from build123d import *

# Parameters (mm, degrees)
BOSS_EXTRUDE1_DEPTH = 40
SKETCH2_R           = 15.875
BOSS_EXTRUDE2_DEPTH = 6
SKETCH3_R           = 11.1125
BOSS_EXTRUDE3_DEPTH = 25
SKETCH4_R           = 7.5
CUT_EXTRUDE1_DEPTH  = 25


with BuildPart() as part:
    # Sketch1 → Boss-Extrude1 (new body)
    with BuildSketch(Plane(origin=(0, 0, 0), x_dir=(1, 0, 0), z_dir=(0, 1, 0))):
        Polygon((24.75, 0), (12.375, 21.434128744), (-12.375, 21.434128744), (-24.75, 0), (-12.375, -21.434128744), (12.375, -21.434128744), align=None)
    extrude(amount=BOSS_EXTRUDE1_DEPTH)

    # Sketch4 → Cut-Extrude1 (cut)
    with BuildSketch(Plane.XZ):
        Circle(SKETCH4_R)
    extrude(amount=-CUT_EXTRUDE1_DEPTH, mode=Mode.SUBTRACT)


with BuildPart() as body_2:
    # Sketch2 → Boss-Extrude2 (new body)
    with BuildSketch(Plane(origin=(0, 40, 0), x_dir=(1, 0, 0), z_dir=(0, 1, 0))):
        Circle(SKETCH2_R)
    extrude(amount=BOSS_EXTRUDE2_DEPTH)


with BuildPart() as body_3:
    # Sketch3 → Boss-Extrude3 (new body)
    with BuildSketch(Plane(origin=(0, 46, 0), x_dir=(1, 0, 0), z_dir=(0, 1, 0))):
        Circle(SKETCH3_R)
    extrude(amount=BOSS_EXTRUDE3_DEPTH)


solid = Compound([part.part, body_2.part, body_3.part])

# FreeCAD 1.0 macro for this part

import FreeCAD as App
import Part
import Sketcher

V = App.Vector
Q = App.Units.Quantity

doc = App.newDocument("Part")
body = doc.addObject("PartDesign::Body", "Body")

sketch1 = body.newObject("Sketcher::SketchObject", "Sketch")
sketch1.AttachmentSupport = (doc.getObject("XZ_Plane"), [""])
sketch1.MapMode = "FlatFace"
sketch1.addGeometry([
    Part.LineSegment(V(25, 0, 0), V(12, -21, 0)),
    Part.LineSegment(V(12, -21, 0), V(-12, -21, 0)),
    Part.LineSegment(V(-12, -21, 0), V(-25, 0, 0)),
    Part.LineSegment(V(-25, 0, 0), V(-12, 21, 0)),
    Part.LineSegment(V(-12, 21, 0), V(12, 21, 0)),
    Part.LineSegment(V(12, 21, 0), V(25, 0, 0)),
], False)
sketch1.addConstraint([
    Sketcher.Constraint("Coincident", 0, 2, 1, 1),
    Sketcher.Constraint("Coincident", 1, 2, 2, 1),
    Sketcher.Constraint("Coincident", 2, 2, 3, 1),
    Sketcher.Constraint("Coincident", 3, 2, 4, 1),
    Sketcher.Constraint("Coincident", 4, 2, 5, 1),
    Sketcher.Constraint("Coincident", 5, 2, 0, 1),
    Sketcher.Constraint("Horizontal", 1),
    Sketcher.Constraint("Horizontal", 4),
    Sketcher.Constraint("Symmetric", 0, 2, 3, 2, -1, 1),
    Sketcher.Constraint("Symmetric", 2, 2, 5, 2, -1, 1),
    Sketcher.Constraint("PointOnObject", 2, 2, -1),
    Sketcher.Constraint("Parallel", 2, 5),
    Sketcher.Constraint("Vertical", 1, 2, 3, 2),
    Sketcher.Constraint("Angle", 0, Q("-120 deg")),
    Sketcher.Constraint("DistanceX", 1, 2, 1, 1, 24.75),
    Sketcher.Constraint("DistanceX", 2, 2, 5, 2, 49.5),
])
pad1 = body.newObject("PartDesign::Pad", "Pad")
pad1.Profile = sketch1
pad1.Length = 40
pad1.Reversed = True

sketch2 = body.newObject("Sketcher::SketchObject", "Sketch001")
sketch2.AttachmentSupport = (doc.getObject("XZ_Plane"), [""])
sketch2.MapMode = "FlatFace"
sketch2.addGeometry(Part.Circle(V(0, 0, 0), V(0, 0, 1), 8), False)
sketch2.addConstraint([
    Sketcher.Constraint("Coincident", 0, 3, -1, 1),
    Sketcher.Constraint("Diameter", 0, 15.0),
])
pocket1 = body.newObject("PartDesign::Pocket", "Pocket")
pocket1.Profile = sketch2
pocket1.Length = 25
body2 = doc.addObject("PartDesign::Body", "Body001")

sketch3 = body2.newObject("Sketcher::SketchObject", "Sketch002")
sketch3.AttachmentSupport = (doc.getObject("XZ_Plane001"), [""])
sketch3.MapMode = "FlatFace"
sketch3.AttachmentOffset = App.Placement(V(0, 0, -40), App.Rotation())
sketch3.addGeometry(Part.Circle(V(0, 0, 0), V(0, 0, 1), 16), False)
sketch3.addConstraint([
    Sketcher.Constraint("Coincident", 0, 3, -1, 1),
    Sketcher.Constraint("Diameter", 0, 31.75),
])
pad2 = body2.newObject("PartDesign::Pad", "Pad001")
pad2.Profile = sketch3
pad2.Length = 6
pad2.Reversed = True
body3 = doc.addObject("PartDesign::Body", "Body002")

sketch4 = body3.newObject("Sketcher::SketchObject", "Sketch003")
sketch4.AttachmentSupport = (doc.getObject("XZ_Plane002"), [""])
sketch4.MapMode = "FlatFace"
sketch4.AttachmentOffset = App.Placement(V(0, 0, -46), App.Rotation())
sketch4.addGeometry(Part.Circle(V(0, 0, 0), V(0, 0, 1), 11), False)
sketch4.addConstraint([
    Sketcher.Constraint("Coincident", 0, 3, -1, 1),
    Sketcher.Constraint("Diameter", 0, 22.225),
])
pad3 = body3.newObject("PartDesign::Pad", "Pad002")
pad3.Profile = sketch4
pad3.Length = 25
pad3.Reversed = True

doc.recompute()
